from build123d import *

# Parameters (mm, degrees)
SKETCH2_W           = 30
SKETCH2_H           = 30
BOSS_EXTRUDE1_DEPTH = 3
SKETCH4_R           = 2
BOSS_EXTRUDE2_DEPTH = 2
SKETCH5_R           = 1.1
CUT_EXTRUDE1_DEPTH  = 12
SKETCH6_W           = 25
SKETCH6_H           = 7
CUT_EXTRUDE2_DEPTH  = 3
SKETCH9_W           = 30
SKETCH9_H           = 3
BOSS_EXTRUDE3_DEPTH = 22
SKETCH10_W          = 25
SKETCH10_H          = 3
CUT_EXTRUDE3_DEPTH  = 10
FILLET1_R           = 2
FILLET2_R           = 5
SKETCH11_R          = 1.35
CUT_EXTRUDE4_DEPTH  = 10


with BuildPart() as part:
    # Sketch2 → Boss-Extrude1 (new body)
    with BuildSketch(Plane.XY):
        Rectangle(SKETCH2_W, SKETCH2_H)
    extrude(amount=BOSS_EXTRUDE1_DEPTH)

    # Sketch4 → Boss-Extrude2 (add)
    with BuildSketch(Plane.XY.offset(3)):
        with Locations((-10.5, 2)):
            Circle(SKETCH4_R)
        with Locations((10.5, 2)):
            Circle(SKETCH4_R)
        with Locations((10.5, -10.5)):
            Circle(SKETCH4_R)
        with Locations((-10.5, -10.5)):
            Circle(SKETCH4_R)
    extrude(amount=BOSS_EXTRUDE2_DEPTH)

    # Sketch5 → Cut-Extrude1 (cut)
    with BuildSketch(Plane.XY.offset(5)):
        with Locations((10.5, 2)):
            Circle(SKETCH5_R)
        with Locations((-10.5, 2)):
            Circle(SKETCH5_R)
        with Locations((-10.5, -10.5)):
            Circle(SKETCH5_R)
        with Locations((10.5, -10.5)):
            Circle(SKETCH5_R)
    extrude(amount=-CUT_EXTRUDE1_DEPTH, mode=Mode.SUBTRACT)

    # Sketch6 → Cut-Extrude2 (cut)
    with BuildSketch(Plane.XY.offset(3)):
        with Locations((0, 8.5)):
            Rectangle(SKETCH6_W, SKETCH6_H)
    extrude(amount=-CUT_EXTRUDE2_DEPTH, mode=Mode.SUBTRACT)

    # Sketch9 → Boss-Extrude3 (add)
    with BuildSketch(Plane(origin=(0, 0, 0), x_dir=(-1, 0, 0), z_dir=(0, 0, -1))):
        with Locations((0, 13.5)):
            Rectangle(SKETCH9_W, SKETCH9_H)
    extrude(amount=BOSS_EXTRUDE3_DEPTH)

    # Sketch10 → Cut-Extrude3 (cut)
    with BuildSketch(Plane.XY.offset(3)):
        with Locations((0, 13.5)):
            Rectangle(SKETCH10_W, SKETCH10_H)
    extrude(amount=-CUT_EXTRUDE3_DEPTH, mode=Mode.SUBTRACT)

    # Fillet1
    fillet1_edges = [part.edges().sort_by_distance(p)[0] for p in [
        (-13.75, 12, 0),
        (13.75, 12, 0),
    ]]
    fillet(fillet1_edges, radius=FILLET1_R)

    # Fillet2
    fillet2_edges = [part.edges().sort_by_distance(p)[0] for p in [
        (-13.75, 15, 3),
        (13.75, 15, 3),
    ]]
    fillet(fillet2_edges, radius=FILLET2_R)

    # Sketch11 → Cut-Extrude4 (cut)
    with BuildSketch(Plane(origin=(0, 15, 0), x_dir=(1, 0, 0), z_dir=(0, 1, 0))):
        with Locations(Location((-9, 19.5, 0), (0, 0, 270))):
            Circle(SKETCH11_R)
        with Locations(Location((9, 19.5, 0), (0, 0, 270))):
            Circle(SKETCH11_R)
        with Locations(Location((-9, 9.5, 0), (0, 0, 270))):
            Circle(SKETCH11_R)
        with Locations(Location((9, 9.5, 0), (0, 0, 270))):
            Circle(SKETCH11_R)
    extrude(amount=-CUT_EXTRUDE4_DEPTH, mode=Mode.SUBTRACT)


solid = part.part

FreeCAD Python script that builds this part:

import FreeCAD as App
import Part
import Sketcher
from FreeCAD import Vector


def edges_at(feature, points):
    """Names of the edges that pass closest to the given points."""
    edges = feature.Shape.Edges
    near = lambda p: min(range(len(edges)), key=lambda i: edges[i].distToShape(Part.Vertex(*p))[0])
    return sorted({f"Edge{near(p) + 1}" for p in points})


def add_polygon(sketch, points):
    """Adds a closed chain of lines whose ends are joined by coincident constraints."""
    first, n = sketch.GeometryCount, len(points)
    for a, b in zip(points, points[1:] + points[:1]):
        sketch.addGeometry(Part.LineSegment(App.Vector(*a, 0), App.Vector(*b, 0)), False)
    for i in range(n):
        sketch.addConstraint(Sketcher.Constraint("Coincident", first + i, 2, first + (i + 1) % n, 1))

doc = App.newDocument("Part")
body = doc.addObject("PartDesign::Body", "Body")

# Sketch on XY plane
sketch1 = body.newObject("Sketcher::SketchObject", "Sketch")
sketch1.AttachmentSupport = (doc.getObject("XY_Plane"), [""])
sketch1.MapMode = "FlatFace"
add_polygon(sketch1, [(-15, 15), (-15, -15), (15, -15), (15, 15)])  # lines 0-3
sketch1.addConstraint([
    Sketcher.Constraint("Vertical", 0),
    Sketcher.Constraint("Horizontal", 1),
    Sketcher.Constraint("Vertical", 2),
    Sketcher.Constraint("Horizontal", 3),
    Sketcher.Constraint("Symmetric", 0, 2, 2, 2, -1, 1),
    Sketcher.Constraint("Equal", 3, 0),
    Sketcher.Constraint("DistanceX", 1, 1, 1, 2, 30.0),
])
pad1 = body.newObject("PartDesign::Pad", "Pad")
pad1.Profile = sketch1
pad1.Length = 3

# Sketch on XY plane
sketch2 = body.newObject("Sketcher::SketchObject", "Sketch001")
sketch2.AttachmentSupport = (doc.getObject("XY_Plane"), [""])
sketch2.MapMode = "FlatFace"
sketch2.AttachmentOffset = App.Placement(Vector(0, 0, 3), App.Rotation())
sketch2.addGeometry([
    Part.Circle(Vector(-10.5, 2, 0), Vector(0, 0, 1), 2),
    Part.Circle(Vector(10.5, 2, 0), Vector(0, 0, 1), 2),
    Part.Circle(Vector(10.5, -10.5, 0), Vector(0, 0, 1), 2),
    Part.Circle(Vector(-10.5, -10.5, 0), Vector(0, 0, 1), 2),
], False)
sketch2.addConstraint([
    Sketcher.Constraint("Equal", 0, 1),
    Sketcher.Constraint("Equal", 1, 2),
    Sketcher.Constraint("Equal", 2, 3),
    Sketcher.Constraint("Symmetric", 0, 3, 1, 3, -2),
    Sketcher.Constraint("Symmetric", 2, 3, 3, 3, -2),
    Sketcher.Constraint("Vertical", 1, 3, 2, 3),
    Sketcher.Constraint("Diameter", 0, 4.0),
    Sketcher.Constraint("DistanceY", -1, 1, 0, 3, 2.0),
    Sketcher.Constraint("DistanceX", 0, 3, 1, 3, 21.0),
    Sketcher.Constraint("DistanceY", 2, 3, -1, 1, 10.5),
])
pad2 = body.newObject("PartDesign::Pad", "Pad001")
pad2.Profile = sketch2
pad2.Length = 2

# Sketch on XY plane
sketch3 = body.newObject("Sketcher::SketchObject", "Sketch002")
sketch3.AttachmentSupport = (doc.getObject("XY_Plane"), [""])
sketch3.MapMode = "FlatFace"
sketch3.AttachmentOffset = App.Placement(Vector(0, 0, 5), App.Rotation())
sketch3.addGeometry([
    Part.Circle(Vector(10.5, 2, 0), Vector(0, 0, 1), 1.1),
    Part.Circle(Vector(-10.5, 2, 0), Vector(0, 0, 1), 1.1),
    Part.Circle(Vector(-10.5, -10.5, 0), Vector(0, 0, 1), 1.1),
    Part.Circle(Vector(10.5, -10.5, 0), Vector(0, 0, 1), 1.1),
], False)
sketch3.addConstraint([
    Sketcher.Constraint("Equal", 0, 1),
    Sketcher.Constraint("Equal", 1, 2),
    Sketcher.Constraint("Equal", 2, 3),
    Sketcher.Constraint("Symmetric", 0, 3, 1, 3, -2),
    Sketcher.Constraint("Symmetric", 2, 3, 3, 3, -2),
    Sketcher.Constraint("Vertical", 1, 3, 2, 3),
    Sketcher.Constraint("Diameter", 0, 2.2),
    Sketcher.Constraint("DistanceY", -1, 1, 0, 3, 2.0),
    Sketcher.Constraint("DistanceX", 1, 3, 0, 3, 21.0),
    Sketcher.Constraint("DistanceY", 2, 3, -1, 1, 10.5),
])
pocket1 = body.newObject("PartDesign::Pocket", "Pocket")
pocket1.Profile = sketch3
pocket1.Length = 12

# Sketch on XY plane
sketch4 = body.newObject("Sketcher::SketchObject", "Sketch003")
sketch4.AttachmentSupport = (doc.getObject("XY_Plane"), [""])
sketch4.MapMode = "FlatFace"
sketch4.AttachmentOffset = App.Placement(Vector(0, 0, 3), App.Rotation())
add_polygon(sketch4, [(-12, 12), (-12, 5), (12, 5), (12, 12)])  # lines 0-3
sketch4.addConstraint([
    Sketcher.Constraint("Vertical", 0),
    Sketcher.Constraint("Horizontal", 1),
    Sketcher.Constraint("Vertical", 2),
    Sketcher.Constraint("Horizontal", 3),
    Sketcher.Constraint("DistanceX", 1, 1, 1, 2, 25.0),
    Sketcher.Constraint("DistanceY", 0, 2, 0, 1, 7.0),
    Sketcher.Constraint("DistanceY", -1, 1, 0, 2, 5.0),
    Sketcher.Constraint("DistanceX", 0, 2, -1, 1, 12.5),
])
pocket2 = body.newObject("PartDesign::Pocket", "Pocket001")
pocket2.Profile = sketch4
pocket2.Length = 3

# Sketch on XY plane
sketch5 = body.newObject("Sketcher::SketchObject", "Sketch004")
sketch5.AttachmentSupport = (doc.getObject("XY_Plane"), [""])
sketch5.MapMode = "FlatFace"
add_polygon(sketch5, [(15, 15), (15, 12), (-15, 12), (-15, 15)])  # lines 0-3
sketch5.addConstraint([
    Sketcher.Constraint("Vertical", 0),
    Sketcher.Constraint("Horizontal", 1),
    Sketcher.Constraint("Vertical", 2),
    Sketcher.Constraint("Horizontal", 3),
    Sketcher.Constraint("DistanceX", 1, 2, 1, 1, 30.0),
    Sketcher.Constraint("DistanceY", 0, 2, 0, 1, 3.0),
    Sketcher.Constraint("DistanceX", -1, 1, 0, 2, 15.0),
    Sketcher.Constraint("DistanceY", -1, 1, 0, 2, 12.0),
])
pad3 = body.newObject("PartDesign::Pad", "Pad002")
pad3.Profile = sketch5
pad3.Length = 22
pad3.Reversed = True

# Sketch on XY plane
sketch6 = body.newObject("Sketcher::SketchObject", "Sketch005")
sketch6.AttachmentSupport = (doc.getObject("XY_Plane"), [""])
sketch6.MapMode = "FlatFace"
sketch6.AttachmentOffset = App.Placement(Vector(0, 0, 3), App.Rotation())
add_polygon(sketch6, [(-12.5, 15), (-12.5, 12), (12.5, 12), (12.5, 15)])  # lines 0-3
sketch6.addConstraint([
    Sketcher.Constraint("Vertical", 0),
    Sketcher.Constraint("Horizontal", 1),
    Sketcher.Constraint("Vertical", 2),
    Sketcher.Constraint("Horizontal", 3),
    Sketcher.Constraint("DistanceX", 1, 1, 1, 2, 25.0),
    Sketcher.Constraint("DistanceY", 0, 2, 0, 1, 3.0),
    Sketcher.Constraint("DistanceY", -1, 1, 0, 2, 12.0),
    Sketcher.Constraint("DistanceX", 0, 2, -1, 1, 12.5),
])
pocket3 = body.newObject("PartDesign::Pocket", "Pocket002")
pocket3.Profile = sketch6
pocket3.Length = 10
doc.recompute()

fillet = body.newObject("PartDesign::Fillet", "Fillet")
fillet.Base = (pocket3, edges_at(pocket3, [(-13.75, 12, 0), (13.75, 12, 0)]))
fillet.Radius = 2
doc.recompute()

fillet2 = body.newObject("PartDesign::Fillet", "Fillet001")
fillet2.Base = (fillet, edges_at(fillet, [(-13.75, 15, 3), (13.75, 15, 3)]))
fillet2.Radius = 5

# Sketch on XZ plane
sketch7 = body.newObject("Sketcher::SketchObject", "Sketch006")
sketch7.AttachmentSupport = (doc.getObject("XZ_Plane"), [""])
sketch7.MapMode = "FlatFace"
sketch7.AttachmentOffset = App.Placement(Vector(0, 0, -15), App.Rotation())
sketch7.addGeometry([
    Part.Circle(Vector(-9, -19.5, 0), Vector(0, 0, 1), 1.4),
    Part.Circle(Vector(9, -19.5, 0), Vector(0, 0, 1), 1.4),
    Part.Circle(Vector(-9, -9.5, 0), Vector(0, 0, 1), 1.4),
    Part.Circle(Vector(9, -9.5, 0), Vector(0, 0, 1), 1.4),
], False)
sketch7.addConstraint([
    Sketcher.Constraint("Equal", 0, 1),
    Sketcher.Constraint("Equal", 1, 2),
    Sketcher.Constraint("Equal", 2, 3),
    Sketcher.Constraint("Symmetric", 0, 3, 1, 3, -2),
    Sketcher.Constraint("Symmetric", 2, 3, 3, 3, -2),
    Sketcher.Constraint("Vertical", 0, 3, 2, 3),
    Sketcher.Constraint("Diameter", 0, 2.7),
    Sketcher.Constraint("DistanceX", 0, 3, -1, 1, 9.0),
    Sketcher.Constraint("DistanceY", 0, 3, 2, 3, 10.0),
    Sketcher.Constraint("DistanceY", 0, 3, -1, 1, 19.5),
])
pocket4 = body.newObject("PartDesign::Pocket", "Pocket003")
pocket4.Profile = sketch7
pocket4.Length = 10
pocket4.Reversed = True

doc.recompute()
